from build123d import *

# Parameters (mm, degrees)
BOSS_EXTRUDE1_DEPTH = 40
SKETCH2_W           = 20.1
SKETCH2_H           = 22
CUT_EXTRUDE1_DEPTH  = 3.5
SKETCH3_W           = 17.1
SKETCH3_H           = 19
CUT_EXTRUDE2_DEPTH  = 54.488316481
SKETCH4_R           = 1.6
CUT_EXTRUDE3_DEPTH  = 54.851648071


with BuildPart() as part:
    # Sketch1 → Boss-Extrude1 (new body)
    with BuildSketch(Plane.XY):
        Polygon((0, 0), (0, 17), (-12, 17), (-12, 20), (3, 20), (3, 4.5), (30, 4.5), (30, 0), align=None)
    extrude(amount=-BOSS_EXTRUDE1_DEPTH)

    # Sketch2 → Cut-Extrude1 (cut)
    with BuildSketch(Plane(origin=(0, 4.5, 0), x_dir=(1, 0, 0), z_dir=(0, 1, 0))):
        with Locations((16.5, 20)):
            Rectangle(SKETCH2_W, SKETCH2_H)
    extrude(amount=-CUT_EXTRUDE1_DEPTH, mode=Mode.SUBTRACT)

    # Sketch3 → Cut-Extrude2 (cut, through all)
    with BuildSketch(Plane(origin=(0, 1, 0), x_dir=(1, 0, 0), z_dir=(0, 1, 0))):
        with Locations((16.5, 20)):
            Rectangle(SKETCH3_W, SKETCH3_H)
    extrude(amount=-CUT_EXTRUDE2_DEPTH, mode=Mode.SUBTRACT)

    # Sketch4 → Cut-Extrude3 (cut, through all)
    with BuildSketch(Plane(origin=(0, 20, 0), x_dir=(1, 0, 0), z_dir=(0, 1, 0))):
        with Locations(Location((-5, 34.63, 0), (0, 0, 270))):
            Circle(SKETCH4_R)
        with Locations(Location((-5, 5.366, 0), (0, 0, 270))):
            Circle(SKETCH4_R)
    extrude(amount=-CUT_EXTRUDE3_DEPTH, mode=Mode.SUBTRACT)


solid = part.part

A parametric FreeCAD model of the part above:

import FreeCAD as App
import Part
import Sketcher

V = App.Vector


def add_polygon(sketch, points):
    """Adds a closed chain of lines whose ends are joined by coincident constraints."""
    first, n = sketch.GeometryCount, len(points)
    for a, b in zip(points, points[1:] + points[:1]):
        sketch.addGeometry(Part.LineSegment(App.Vector(*a, 0), App.Vector(*b, 0)), False)
    for i in range(n):
        sketch.addConstraint(Sketcher.Constraint("Coincident", first + i, 2, first + (i + 1) % n, 1))

doc = App.newDocument("Part")
body = doc.addObject("PartDesign::Body", "Body")

# Sketch on XY plane
sketch1 = doc.addObject("Sketcher::SketchObject", "Sketch")
body.addObject(sketch1)
sketch1.AttachmentSupport = (doc.XY_Plane, [""])
sketch1.MapMode = "FlatFace"
add_polygon(sketch1, [(0, 17), (0, 0), (30, 0), (30, 4.5), (3, 4.5), (3, 20), (-12, 20), (-12, 17)])  # lines 0-7
sketch1.addConstraint([
    Sketcher.Constraint("Vertical", 0),
    Sketcher.Constraint("Horizontal", 1),
    Sketcher.Constraint("Vertical", 2),
    Sketcher.Constraint("Horizontal", 3),
    Sketcher.Constraint("Vertical", 4),
    Sketcher.Constraint("Horizontal", 5),
    Sketcher.Constraint("Vertical", 6),
    Sketcher.Constraint("Horizontal", 7),
    Sketcher.Constraint("Coincident", 0, 2, -1, 1),
    Sketcher.Constraint("DistanceX", 1, 1, 1, 2, 30.0),
    Sketcher.Constraint("DistanceX", 3, 2, 3, 1, 27.0),
    Sketcher.Constraint("DistanceX", 5, 2, 5, 1, 15.0),
    Sketcher.Constraint("DistanceY", 0, 2, 0, 1, 17.0),
    Sketcher.Constraint("DistanceY", 6, 2, 6, 1, 3.0),
    Sketcher.Constraint("DistanceY", 2, 1, 2, 2, 4.5),
])
pad1 = doc.addObject("PartDesign::Pad", "Pad")
body.addObject(pad1)
pad1.Profile = sketch1
pad1.Length = 40
pad1.Reversed = True

# Sketch on XZ plane
sketch2 = doc.addObject("Sketcher::SketchObject", "Sketch001")
body.addObject(sketch2)
sketch2.AttachmentSupport = (doc.XZ_Plane, [""])
sketch2.MapMode = "FlatFace"
sketch2.AttachmentOffset = App.Placement(V(0, 0, -4.5), App.Rotation())
add_polygon(sketch2, [(6, -31), (6, -9), (27, -9), (27, -31)])  # lines 0-3
sketch2.addConstraint([
    Sketcher.Constraint("Vertical", 0),
    Sketcher.Constraint("Horizontal", 1),
    Sketcher.Constraint("Vertical", 2),
    Sketcher.Constraint("Horizontal", 3),
    Sketcher.Constraint("DistanceY", 0, 1, 0, 2, 22.0),
    Sketcher.Constraint("DistanceX", 1, 1, 1, 2, 20.1),
    Sketcher.Constraint("DistanceY", 0, 2, -1, 1, 9.0),
    Sketcher.Constraint("DistanceX", -1, 1, 0, 2, 6.45),
])
pocket1 = doc.addObject("PartDesign::Pocket", "Pocket")
body.addObject(pocket1)
pocket1.Profile = sketch2
pocket1.Length = 3.5
pocket1.Reversed = True

# Sketch on XZ plane
sketch3 = doc.addObject("Sketcher::SketchObject", "Sketch002")
body.addObject(sketch3)
sketch3.AttachmentSupport = (doc.XZ_Plane, [""])
sketch3.MapMode = "FlatFace"
sketch3.AttachmentOffset = App.Placement(V(0, 0, -1), App.Rotation())
add_polygon(sketch3, [(8, -30), (8, -10), (25, -10), (25, -30)])  # lines 0-3
sketch3.addConstraint([
    Sketcher.Constraint("Vertical", 0),
    Sketcher.Constraint("Horizontal", 1),
    Sketcher.Constraint("Vertical", 2),
    Sketcher.Constraint("Horizontal", 3),
    Sketcher.Constraint("DistanceY", 0, 1, 0, 2, 19.0),
    Sketcher.Constraint("DistanceX", 1, 1, 1, 2, 17.1),
    Sketcher.Constraint("DistanceY", 0, 2, -1, 1, 10.5),
    Sketcher.Constraint("DistanceX", -1, 1, 0, 2, 7.95),
])
pocket2 = doc.addObject("PartDesign::Pocket", "Pocket001")
body.addObject(pocket2)
pocket2.Profile = sketch3
pocket2.Type = "ThroughAll"
pocket2.Reversed = True

# Sketch on XZ plane
sketch4 = doc.addObject("Sketcher::SketchObject", "Sketch003")
body.addObject(sketch4)
sketch4.AttachmentSupport = (doc.XZ_Plane, [""])
sketch4.MapMode = "FlatFace"
sketch4.AttachmentOffset = App.Placement(V(0, 0, -20), App.Rotation())
sketch4.addGeometry([
    Part.Circle(V(-5, -34.6, 0), V(0, 0, 1), 1.6),
    Part.Circle(V(-5, -5.4, 0), V(0, 0, 1), 1.6),
], False)
sketch4.addConstraint([
    Sketcher.Constraint("Equal", 0, 1),
    Sketcher.Constraint("Vertical", 0, 3, 1, 3),
    Sketcher.Constraint("Diameter", 0, 3.2),
    Sketcher.Constraint("DistanceX", 0, 3, -1, 1, 5.0),
    Sketcher.Constraint("DistanceY", 0, 3, -1, 1, 34.63),
    Sketcher.Constraint("DistanceY", 1, 3, -1, 1, 5.366),
])
pocket3 = doc.addObject("PartDesign::Pocket", "Pocket002")
body.addObject(pocket3)
pocket3.Profile = sketch4
pocket3.Type = "ThroughAll"
pocket3.Reversed = True

doc.recompute()
